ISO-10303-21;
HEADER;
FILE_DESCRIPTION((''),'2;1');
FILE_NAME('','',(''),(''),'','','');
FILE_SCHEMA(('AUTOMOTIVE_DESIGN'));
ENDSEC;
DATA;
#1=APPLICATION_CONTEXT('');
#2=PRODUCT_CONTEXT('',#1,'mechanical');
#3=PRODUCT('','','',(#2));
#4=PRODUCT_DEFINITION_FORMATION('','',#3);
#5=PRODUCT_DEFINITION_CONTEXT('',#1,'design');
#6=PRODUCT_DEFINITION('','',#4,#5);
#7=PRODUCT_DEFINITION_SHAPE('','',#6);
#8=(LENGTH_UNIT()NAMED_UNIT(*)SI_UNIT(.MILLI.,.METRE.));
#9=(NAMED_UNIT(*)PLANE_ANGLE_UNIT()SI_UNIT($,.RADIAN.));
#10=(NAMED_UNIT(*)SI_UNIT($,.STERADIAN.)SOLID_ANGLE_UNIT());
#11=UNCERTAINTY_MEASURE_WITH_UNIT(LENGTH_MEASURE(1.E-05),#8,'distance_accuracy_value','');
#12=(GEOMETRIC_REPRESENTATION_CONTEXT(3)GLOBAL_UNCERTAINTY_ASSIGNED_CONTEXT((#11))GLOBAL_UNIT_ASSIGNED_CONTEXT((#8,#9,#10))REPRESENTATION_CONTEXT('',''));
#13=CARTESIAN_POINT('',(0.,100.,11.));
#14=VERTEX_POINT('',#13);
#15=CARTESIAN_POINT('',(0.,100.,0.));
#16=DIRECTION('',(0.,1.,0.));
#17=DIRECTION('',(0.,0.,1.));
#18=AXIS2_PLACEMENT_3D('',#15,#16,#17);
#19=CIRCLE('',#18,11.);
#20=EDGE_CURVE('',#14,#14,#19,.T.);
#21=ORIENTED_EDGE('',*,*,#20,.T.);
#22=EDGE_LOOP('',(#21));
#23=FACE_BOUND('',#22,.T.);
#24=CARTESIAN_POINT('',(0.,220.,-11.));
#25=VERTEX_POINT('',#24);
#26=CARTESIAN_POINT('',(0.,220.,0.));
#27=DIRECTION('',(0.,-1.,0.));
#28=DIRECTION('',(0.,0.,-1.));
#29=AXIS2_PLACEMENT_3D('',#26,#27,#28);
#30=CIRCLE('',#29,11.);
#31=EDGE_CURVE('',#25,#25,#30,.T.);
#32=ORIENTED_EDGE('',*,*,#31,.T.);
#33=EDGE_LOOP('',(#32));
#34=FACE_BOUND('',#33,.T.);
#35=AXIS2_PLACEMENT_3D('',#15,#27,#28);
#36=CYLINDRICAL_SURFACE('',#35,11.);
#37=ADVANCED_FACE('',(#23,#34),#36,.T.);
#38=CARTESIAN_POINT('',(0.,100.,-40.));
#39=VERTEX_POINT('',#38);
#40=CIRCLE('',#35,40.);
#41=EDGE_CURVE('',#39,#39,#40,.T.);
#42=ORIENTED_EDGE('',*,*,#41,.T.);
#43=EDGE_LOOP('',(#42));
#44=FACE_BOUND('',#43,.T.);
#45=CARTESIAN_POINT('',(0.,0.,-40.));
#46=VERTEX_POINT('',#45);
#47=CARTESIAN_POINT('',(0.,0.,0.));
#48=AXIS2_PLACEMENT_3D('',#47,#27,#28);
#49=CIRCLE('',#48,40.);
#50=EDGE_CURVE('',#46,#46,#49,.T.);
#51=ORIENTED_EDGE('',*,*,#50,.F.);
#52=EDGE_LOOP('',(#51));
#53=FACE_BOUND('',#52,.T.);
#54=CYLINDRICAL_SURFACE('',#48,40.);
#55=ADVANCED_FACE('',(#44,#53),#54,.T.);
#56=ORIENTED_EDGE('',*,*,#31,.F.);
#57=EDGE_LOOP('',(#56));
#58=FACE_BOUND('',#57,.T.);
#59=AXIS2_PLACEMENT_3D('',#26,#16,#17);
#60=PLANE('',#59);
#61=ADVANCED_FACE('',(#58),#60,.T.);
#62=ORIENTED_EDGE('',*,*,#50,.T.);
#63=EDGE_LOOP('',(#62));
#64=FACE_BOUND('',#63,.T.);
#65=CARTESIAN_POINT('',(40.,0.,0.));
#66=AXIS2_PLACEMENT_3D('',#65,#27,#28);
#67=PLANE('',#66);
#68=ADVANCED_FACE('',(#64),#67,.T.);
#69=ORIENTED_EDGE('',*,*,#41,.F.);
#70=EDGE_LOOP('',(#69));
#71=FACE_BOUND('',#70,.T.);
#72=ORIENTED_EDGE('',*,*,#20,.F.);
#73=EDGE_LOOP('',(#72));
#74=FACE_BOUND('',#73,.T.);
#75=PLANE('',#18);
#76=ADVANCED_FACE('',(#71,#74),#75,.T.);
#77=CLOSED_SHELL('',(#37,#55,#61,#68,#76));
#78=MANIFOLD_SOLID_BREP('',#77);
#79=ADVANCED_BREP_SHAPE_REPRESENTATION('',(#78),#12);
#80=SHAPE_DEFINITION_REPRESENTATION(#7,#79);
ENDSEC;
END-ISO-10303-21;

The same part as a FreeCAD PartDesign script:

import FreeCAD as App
import Part
import Sketcher
from FreeCAD import Vector


def add_polygon(sketch, points):
    """Adds a closed chain of lines whose ends are joined by coincident constraints."""
    first, n = sketch.GeometryCount, len(points)
    for a, b in zip(points, points[1:] + points[:1]):
        sketch.addGeometry(Part.LineSegment(App.Vector(*a, 0), App.Vector(*b, 0)), False)
    for i in range(n):
        sketch.addConstraint(Sketcher.Constraint("Coincident", first + i, 2, first + (i + 1) % n, 1))

doc = App.newDocument("Part")
body = doc.addObject("PartDesign::Body", "Body")

# Sketch on XY plane
sketch1 = doc.addObject("Sketcher::SketchObject", "Sketch")
body.addObject(sketch1)
sketch1.AttachmentSupport = (doc.XY_Plane, [""])
sketch1.MapMode = "FlatFace"
add_polygon(sketch1, [(0, 100), (0, 0), (40, 0), (40, 100)])  # lines 0-3
sketch1.addConstraint(Sketcher.Constraint("Vertical", 0))
sketch1.addConstraint(Sketcher.Constraint("Horizontal", 1))
sketch1.addConstraint(Sketcher.Constraint("Vertical", 2))
sketch1.addConstraint(Sketcher.Constraint("Horizontal", 3))
sketch1.addConstraint(Sketcher.Constraint("Coincident", 0, 2, -1, 1))
sketch1.addConstraint(Sketcher.Constraint("DistanceX", 1, 1, 1, 2, 40.0))
sketch1.addConstraint(Sketcher.Constraint("DistanceY", 0, 2, 0, 1, 100.0))
revolution = doc.addObject("PartDesign::Revolution", "Revolution")
body.addObject(revolution)
revolution.Profile = sketch1
revolution.ReferenceAxis = (sketch1, ["V_Axis"])
revolution.Angle = 360

# Sketch on XY plane
sketch2 = doc.addObject("Sketcher::SketchObject", "Sketch001")
body.addObject(sketch2)
sketch2.AttachmentSupport = (doc.XY_Plane, [""])
sketch2.MapMode = "FlatFace"
add_polygon(sketch2, [(0, 220), (0, 100), (11, 100), (11, 220)])  # lines 0-3
sketch2.addConstraint(Sketcher.Constraint("Vertical", 0))
sketch2.addConstraint(Sketcher.Constraint("Horizontal", 1))
sketch2.addConstraint(Sketcher.Constraint("Vertical", 2))
sketch2.addConstraint(Sketcher.Constraint("Horizontal", 3))
sketch2.addConstraint(Sketcher.Constraint("PointOnObject", 0, 2, -2))
sketch2.addConstraint(Sketcher.Constraint("DistanceX", 1, 1, 1, 2, 11.0))
sketch2.addConstraint(Sketcher.Constraint("DistanceY", 0, 2, 0, 1, 120.0))
sketch2.addConstraint(Sketcher.Constraint("DistanceY", -1, 1, 0, 2, 100.0))
revolution2 = doc.addObject("PartDesign::Revolution", "Revolution001")
body.addObject(revolution2)
revolution2.Profile = sketch2
revolution2.ReferenceAxis = (sketch2, ["V_Axis"])
revolution2.Angle = 360

doc.recompute()
